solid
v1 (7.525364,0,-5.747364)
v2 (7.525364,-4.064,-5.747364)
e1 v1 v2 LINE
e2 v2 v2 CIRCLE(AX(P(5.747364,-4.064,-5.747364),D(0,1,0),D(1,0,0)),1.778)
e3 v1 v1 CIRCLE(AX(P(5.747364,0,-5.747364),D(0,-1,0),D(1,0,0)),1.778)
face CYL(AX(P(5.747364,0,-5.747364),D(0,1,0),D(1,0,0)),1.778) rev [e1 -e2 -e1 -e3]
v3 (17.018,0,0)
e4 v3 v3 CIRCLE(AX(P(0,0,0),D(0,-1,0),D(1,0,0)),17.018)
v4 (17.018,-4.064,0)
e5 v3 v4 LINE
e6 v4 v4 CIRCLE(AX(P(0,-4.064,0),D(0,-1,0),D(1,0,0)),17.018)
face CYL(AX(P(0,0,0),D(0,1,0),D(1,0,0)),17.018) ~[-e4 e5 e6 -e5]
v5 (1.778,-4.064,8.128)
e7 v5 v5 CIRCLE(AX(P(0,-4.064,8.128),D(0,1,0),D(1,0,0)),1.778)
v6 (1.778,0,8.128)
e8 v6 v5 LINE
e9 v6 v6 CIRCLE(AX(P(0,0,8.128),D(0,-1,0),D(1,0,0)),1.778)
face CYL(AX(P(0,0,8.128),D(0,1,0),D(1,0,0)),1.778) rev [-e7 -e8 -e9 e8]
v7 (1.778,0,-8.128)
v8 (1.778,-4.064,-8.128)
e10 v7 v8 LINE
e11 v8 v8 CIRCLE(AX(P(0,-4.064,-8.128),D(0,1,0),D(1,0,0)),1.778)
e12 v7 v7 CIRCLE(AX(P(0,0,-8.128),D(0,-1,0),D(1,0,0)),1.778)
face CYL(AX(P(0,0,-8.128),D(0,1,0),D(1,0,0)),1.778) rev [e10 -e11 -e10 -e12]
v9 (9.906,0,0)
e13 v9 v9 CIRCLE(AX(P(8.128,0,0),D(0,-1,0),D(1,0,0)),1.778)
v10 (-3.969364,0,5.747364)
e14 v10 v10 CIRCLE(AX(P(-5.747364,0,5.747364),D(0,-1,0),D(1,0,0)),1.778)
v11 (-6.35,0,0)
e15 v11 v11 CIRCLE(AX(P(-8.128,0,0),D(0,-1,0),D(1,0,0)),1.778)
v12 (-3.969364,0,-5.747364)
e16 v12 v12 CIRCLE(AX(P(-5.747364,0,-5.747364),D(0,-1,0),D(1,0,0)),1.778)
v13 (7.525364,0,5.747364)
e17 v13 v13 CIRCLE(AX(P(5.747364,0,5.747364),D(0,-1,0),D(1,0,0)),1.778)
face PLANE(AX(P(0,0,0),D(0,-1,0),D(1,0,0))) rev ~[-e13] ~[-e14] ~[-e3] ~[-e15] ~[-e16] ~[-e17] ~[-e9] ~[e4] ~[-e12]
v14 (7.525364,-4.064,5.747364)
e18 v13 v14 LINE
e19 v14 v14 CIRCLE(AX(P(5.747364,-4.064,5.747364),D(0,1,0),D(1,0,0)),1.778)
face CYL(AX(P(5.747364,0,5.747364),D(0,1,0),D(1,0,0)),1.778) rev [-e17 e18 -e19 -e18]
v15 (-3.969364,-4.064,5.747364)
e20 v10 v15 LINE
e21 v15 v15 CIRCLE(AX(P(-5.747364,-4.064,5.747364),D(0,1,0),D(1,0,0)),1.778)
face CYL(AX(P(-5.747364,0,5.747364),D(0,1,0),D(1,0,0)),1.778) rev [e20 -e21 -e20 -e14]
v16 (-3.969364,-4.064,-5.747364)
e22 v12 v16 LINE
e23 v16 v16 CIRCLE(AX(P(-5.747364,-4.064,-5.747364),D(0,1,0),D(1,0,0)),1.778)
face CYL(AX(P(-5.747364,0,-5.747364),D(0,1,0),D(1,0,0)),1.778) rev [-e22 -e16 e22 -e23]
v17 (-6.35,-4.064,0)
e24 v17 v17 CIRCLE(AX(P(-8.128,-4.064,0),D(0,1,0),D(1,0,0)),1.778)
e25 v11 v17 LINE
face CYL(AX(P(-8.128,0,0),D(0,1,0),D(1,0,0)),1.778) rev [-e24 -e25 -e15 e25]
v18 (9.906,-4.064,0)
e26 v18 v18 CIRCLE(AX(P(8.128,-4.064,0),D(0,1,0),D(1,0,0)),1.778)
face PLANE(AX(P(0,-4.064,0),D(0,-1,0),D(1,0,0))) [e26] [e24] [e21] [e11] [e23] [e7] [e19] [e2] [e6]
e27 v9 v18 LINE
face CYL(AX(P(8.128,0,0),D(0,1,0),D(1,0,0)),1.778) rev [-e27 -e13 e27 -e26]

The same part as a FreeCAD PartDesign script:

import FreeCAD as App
import Part
import Sketcher

V = App.Vector
Q = App.Units.Quantity

doc = App.newDocument("Part")
body = doc.addObject("PartDesign::Body", "Body")

# Sketch on XZ plane
sketch1 = body.newObject("Sketcher::SketchObject", "Sketch")
sketch1.AttachmentSupport = (doc.getObject("XZ_Plane"), [""])
sketch1.MapMode = "FlatFace"
sketch1.addGeometry(Part.Circle(V(0, 0, 0), V(0, 0, 1), 17.018), False)
sketch1.addConstraint([
    Sketcher.Constraint("Coincident", 0, 3, -1, 1),
    Sketcher.Constraint("Diameter", 0, Q("1.34 in")),
])
pad1 = body.newObject("PartDesign::Pad", "Pad")
pad1.Profile = sketch1
pad1.Length = Q("0.16 in")

# Sketch on XZ plane
sketch2 = body.newObject("Sketcher::SketchObject", "Sketch001")
sketch2.AttachmentSupport = (doc.getObject("XZ_Plane"), [""])
sketch2.MapMode = "FlatFace"
sketch2.addGeometry([
    Part.Circle(V(0, 8.128, 0), V(0, 0, 1), 1.778),  # 0
    Part.Circle(V(-5.747364, 5.747364, 0), V(0, 0, 1), 1.778),  # 1
    Part.Circle(V(-8.128, 0, 0), V(0, 0, 1), 1.778),  # 2
    Part.Circle(V(-5.747364, -5.747364, 0), V(0, 0, 1), 1.778),  # 3
    Part.Circle(V(0, -8.128, 0), V(0, 0, 1), 1.778),  # 4
    Part.Circle(V(5.747364, -5.747364, 0), V(0, 0, 1), 1.778),  # 5
    Part.Circle(V(8.128, 0, 0), V(0, 0, 1), 1.778),  # 6
    Part.Circle(V(5.747364, 5.747364, 0), V(0, 0, 1), 1.778),  # 7
], False)
sketch2.addConstraint([
    Sketcher.Constraint("Equal", 0, 1),
    Sketcher.Constraint("Equal", 1, 2),
    Sketcher.Constraint("Equal", 2, 3),
    Sketcher.Constraint("Equal", 3, 4),
    Sketcher.Constraint("Equal", 4, 5),
    Sketcher.Constraint("Equal", 5, 6),
    Sketcher.Constraint("Equal", 6, 7),
    Sketcher.Constraint("Symmetric", 0, 3, 4, 3, -1, 1),
    Sketcher.Constraint("Symmetric", 1, 3, 5, 3, -1, 1),
    Sketcher.Constraint("Symmetric", 2, 3, 6, 3, -1, 1),
    Sketcher.Constraint("Symmetric", 3, 3, 7, 3, -1, 1),
    Sketcher.Constraint("Symmetric", 3, 3, 5, 3, -2),
    Sketcher.Constraint("PointOnObject", 0, 3, -2),
    Sketcher.Constraint("PointOnObject", 2, 3, -1),
    Sketcher.Constraint("Diameter", 0, Q("0.14 in")),
    Sketcher.Constraint("DistanceY", -1, 1, 0, 3, Q("0.32 in")),
    Sketcher.Constraint("DistanceX", 2, 3, -1, 1, Q("0.32 in")),
    Sketcher.Constraint("DistanceX", 1, 3, -1, 1, 5.747364),
    Sketcher.Constraint("DistanceY", -1, 1, 1, 3, 5.747364),
])
pocket1 = body.newObject("PartDesign::Pocket", "Pocket")
pocket1.Profile = sketch2
pocket1.Length = Q("1 in")
pocket1.Reversed = True

doc.recompute()
